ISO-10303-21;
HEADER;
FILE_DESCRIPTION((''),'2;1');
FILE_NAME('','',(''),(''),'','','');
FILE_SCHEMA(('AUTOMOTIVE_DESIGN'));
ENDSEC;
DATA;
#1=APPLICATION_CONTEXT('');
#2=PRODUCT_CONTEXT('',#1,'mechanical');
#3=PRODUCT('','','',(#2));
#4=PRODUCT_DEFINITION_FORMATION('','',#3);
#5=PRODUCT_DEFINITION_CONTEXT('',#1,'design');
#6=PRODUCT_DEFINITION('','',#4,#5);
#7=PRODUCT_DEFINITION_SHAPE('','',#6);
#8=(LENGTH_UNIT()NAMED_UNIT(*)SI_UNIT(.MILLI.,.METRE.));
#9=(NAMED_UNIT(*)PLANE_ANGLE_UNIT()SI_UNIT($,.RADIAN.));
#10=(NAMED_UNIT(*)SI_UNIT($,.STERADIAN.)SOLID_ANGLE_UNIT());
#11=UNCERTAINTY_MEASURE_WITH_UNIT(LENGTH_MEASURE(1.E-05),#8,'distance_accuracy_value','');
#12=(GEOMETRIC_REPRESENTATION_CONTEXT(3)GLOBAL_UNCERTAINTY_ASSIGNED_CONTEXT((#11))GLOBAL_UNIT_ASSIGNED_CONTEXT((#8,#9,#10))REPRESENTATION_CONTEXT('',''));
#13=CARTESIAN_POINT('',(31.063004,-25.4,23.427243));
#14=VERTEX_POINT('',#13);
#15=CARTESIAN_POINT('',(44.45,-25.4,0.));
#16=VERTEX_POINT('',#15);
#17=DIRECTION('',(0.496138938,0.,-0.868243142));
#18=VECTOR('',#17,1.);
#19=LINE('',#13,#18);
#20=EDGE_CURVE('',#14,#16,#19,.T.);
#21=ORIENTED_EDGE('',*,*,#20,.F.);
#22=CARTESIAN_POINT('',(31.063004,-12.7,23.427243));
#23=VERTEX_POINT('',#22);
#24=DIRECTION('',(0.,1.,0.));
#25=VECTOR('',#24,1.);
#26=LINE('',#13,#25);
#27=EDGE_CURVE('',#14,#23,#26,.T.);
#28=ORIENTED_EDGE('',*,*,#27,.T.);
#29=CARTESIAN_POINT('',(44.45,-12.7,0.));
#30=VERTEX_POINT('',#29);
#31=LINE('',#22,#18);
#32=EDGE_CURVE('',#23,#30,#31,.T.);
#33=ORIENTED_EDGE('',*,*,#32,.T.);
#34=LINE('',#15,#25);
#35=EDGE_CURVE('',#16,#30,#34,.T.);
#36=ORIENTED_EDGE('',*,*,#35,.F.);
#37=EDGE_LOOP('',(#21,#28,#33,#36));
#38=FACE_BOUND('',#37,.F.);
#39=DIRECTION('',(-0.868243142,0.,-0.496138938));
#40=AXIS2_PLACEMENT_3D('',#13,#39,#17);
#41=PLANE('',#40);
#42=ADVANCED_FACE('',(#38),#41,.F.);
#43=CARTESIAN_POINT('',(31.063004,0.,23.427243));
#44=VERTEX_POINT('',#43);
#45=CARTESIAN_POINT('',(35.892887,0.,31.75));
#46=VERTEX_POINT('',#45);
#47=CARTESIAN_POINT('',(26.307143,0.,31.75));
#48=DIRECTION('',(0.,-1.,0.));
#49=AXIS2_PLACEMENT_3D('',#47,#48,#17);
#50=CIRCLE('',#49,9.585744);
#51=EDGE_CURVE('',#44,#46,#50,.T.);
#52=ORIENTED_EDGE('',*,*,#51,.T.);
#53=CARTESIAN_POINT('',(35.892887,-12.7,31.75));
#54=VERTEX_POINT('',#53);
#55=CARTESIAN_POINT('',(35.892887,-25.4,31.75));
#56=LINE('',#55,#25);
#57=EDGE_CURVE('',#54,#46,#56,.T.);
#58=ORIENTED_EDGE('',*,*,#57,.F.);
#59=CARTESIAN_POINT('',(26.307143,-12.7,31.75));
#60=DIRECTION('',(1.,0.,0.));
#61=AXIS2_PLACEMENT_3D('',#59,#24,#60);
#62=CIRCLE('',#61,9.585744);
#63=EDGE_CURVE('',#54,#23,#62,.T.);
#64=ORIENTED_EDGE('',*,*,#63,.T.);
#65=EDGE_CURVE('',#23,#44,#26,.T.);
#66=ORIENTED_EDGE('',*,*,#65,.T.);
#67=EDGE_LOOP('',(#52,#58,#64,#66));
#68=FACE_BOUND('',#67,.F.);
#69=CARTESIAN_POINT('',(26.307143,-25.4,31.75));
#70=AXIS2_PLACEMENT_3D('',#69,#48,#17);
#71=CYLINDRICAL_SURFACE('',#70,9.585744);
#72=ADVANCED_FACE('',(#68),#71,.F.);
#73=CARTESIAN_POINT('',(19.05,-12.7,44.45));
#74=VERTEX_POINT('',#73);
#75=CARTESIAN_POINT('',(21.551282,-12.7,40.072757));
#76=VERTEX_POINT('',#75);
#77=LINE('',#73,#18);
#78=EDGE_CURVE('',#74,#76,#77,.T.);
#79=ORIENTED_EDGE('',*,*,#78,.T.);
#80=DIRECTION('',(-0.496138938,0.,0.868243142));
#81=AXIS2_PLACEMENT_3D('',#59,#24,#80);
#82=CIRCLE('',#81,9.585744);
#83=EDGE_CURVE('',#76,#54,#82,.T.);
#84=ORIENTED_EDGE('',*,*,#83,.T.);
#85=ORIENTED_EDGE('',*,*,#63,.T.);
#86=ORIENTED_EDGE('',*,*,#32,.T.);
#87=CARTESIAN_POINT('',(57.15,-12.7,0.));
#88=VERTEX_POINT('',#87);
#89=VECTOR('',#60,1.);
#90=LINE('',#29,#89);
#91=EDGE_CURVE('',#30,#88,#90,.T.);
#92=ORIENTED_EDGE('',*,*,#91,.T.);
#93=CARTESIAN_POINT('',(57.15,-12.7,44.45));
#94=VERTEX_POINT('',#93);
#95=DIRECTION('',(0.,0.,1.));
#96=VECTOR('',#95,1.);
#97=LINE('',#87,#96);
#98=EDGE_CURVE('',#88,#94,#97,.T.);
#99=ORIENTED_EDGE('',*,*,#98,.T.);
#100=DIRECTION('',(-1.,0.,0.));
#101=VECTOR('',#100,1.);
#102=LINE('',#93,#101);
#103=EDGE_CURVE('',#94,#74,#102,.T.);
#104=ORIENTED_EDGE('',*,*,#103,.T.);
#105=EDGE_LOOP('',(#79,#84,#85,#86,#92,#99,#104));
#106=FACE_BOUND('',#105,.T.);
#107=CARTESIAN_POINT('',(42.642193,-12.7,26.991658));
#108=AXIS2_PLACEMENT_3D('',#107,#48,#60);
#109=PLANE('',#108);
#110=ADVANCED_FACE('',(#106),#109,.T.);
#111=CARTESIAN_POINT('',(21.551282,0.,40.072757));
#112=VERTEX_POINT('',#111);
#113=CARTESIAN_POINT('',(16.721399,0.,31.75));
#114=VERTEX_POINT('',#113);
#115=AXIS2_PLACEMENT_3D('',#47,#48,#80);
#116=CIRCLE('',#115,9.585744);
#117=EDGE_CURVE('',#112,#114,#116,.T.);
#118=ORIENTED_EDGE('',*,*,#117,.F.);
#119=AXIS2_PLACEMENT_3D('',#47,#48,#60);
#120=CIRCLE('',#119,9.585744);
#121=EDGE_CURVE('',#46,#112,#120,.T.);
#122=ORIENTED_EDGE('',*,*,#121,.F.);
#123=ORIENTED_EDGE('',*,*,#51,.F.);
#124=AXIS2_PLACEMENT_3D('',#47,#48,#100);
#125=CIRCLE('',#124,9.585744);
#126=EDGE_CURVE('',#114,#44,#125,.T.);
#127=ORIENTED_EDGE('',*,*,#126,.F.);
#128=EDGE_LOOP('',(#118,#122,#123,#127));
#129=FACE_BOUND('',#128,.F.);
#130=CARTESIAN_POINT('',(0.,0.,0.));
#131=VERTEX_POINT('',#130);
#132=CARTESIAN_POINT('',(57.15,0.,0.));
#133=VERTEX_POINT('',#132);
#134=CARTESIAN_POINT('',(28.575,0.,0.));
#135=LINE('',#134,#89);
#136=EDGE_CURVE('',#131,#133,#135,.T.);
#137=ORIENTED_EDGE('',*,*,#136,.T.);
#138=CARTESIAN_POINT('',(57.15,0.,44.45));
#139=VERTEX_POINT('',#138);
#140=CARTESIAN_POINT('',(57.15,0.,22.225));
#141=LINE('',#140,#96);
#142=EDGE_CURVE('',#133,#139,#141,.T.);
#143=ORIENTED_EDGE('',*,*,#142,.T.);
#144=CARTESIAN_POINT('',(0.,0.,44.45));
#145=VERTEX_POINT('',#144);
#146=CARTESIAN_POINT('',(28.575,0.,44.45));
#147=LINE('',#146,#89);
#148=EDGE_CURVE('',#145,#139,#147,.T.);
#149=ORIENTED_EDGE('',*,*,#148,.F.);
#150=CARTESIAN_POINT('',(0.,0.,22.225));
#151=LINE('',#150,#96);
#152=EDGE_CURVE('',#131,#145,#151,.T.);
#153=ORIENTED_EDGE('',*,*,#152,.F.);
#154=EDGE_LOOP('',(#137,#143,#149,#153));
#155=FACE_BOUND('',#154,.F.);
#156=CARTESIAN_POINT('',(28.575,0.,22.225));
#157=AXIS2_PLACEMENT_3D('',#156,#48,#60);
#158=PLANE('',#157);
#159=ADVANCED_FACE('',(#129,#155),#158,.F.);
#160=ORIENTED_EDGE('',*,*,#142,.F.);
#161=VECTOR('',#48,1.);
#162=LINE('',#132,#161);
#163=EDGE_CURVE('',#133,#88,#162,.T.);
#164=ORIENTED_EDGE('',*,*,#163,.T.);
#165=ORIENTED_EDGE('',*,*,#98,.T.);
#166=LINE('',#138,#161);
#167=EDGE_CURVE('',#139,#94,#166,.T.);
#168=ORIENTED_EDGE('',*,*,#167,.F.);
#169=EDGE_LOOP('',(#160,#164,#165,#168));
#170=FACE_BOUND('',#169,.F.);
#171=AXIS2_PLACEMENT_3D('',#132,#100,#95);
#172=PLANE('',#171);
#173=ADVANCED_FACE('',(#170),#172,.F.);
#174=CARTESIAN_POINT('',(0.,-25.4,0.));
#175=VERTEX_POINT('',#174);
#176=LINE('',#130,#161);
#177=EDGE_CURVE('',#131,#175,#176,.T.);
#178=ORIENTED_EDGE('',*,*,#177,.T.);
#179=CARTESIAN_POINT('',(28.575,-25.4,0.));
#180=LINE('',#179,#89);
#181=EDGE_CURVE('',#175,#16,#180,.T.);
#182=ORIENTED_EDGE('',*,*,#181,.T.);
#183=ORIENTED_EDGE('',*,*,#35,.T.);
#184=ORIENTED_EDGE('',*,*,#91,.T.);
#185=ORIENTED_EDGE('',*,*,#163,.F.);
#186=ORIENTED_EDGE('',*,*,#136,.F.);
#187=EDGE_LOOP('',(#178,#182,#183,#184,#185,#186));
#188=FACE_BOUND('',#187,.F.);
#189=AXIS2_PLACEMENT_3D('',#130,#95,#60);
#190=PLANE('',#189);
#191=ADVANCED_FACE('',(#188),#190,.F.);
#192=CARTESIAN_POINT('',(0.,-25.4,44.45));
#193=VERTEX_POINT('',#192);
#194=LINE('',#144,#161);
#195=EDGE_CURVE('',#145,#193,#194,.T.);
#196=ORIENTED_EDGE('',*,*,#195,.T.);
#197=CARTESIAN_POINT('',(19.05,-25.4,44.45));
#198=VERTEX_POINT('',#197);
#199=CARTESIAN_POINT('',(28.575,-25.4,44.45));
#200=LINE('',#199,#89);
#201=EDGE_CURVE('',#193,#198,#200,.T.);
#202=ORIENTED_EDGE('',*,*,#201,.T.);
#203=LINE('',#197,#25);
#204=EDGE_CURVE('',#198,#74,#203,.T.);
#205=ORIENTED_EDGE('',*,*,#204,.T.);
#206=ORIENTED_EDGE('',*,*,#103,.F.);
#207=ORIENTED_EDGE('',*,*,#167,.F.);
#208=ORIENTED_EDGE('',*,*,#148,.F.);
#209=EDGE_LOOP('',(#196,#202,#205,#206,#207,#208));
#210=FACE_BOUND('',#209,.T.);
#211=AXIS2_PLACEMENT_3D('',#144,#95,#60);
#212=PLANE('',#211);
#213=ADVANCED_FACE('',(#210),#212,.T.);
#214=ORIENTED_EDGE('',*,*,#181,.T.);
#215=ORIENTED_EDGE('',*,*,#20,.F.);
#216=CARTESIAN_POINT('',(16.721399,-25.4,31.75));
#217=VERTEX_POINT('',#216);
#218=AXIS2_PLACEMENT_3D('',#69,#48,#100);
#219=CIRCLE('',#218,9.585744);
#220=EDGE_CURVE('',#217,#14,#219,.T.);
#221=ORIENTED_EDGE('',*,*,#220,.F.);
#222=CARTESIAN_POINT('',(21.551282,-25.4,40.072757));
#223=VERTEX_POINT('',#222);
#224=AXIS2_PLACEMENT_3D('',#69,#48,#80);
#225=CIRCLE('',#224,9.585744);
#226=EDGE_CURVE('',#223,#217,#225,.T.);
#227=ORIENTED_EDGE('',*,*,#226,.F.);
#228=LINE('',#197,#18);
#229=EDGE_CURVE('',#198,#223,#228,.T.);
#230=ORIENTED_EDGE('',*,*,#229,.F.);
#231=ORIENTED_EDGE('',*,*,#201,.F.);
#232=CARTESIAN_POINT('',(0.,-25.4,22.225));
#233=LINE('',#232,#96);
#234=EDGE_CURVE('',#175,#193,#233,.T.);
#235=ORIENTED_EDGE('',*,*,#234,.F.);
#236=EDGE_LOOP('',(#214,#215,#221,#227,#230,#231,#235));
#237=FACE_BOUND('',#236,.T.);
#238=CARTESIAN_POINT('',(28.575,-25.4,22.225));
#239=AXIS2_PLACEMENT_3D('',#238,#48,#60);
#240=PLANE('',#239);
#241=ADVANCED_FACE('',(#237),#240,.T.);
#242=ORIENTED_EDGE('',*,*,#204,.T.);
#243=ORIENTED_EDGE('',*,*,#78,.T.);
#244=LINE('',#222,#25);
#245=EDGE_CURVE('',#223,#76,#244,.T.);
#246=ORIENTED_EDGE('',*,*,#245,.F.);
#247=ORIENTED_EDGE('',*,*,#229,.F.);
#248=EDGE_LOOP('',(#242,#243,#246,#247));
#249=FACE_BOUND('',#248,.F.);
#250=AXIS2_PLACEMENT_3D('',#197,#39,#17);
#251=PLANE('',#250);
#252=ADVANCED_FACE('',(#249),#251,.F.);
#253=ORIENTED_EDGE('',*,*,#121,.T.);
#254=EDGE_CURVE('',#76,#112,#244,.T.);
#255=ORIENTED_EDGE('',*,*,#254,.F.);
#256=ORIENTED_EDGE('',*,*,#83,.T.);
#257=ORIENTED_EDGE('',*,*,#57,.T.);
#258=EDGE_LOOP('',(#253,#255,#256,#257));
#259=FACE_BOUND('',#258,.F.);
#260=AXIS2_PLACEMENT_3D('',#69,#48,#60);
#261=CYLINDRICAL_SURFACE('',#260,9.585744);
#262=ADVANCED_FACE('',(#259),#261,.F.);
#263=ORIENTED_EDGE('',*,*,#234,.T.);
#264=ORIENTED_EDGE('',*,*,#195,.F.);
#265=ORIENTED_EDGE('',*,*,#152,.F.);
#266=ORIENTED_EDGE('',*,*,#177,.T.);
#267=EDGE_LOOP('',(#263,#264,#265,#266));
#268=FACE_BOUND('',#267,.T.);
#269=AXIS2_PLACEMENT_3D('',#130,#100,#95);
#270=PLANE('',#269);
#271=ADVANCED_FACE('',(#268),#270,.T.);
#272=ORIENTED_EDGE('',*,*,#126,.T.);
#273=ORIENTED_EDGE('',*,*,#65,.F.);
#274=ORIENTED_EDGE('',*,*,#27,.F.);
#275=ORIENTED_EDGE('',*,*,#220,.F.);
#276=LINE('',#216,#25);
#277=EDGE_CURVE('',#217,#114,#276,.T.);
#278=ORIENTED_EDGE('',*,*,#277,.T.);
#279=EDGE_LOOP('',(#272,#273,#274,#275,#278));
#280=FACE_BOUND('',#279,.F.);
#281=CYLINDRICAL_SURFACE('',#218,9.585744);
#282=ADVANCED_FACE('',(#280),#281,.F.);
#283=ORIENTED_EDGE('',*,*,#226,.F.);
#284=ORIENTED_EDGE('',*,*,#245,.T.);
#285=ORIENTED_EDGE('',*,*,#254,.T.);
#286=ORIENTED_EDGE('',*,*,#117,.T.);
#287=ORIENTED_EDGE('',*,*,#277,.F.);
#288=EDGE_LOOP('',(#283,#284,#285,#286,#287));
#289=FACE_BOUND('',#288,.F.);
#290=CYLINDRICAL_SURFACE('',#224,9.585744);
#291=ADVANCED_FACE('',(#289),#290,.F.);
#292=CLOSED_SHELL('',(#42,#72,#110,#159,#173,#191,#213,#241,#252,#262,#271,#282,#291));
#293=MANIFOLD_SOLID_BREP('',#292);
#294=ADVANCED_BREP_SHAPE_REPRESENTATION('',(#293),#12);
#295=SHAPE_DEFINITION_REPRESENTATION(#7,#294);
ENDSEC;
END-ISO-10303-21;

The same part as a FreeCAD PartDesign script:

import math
import FreeCAD as App
import Part
import Sketcher

V = App.Vector
Q = App.Units.Quantity

doc = App.newDocument("Part")
body = doc.addObject("PartDesign::Body", "Body")

# Sketch on XZ plane
sketch1 = doc.addObject("Sketcher::SketchObject", "Sketch")
body.addObject(sketch1)
sketch1.AttachmentSupport = (doc.XZ_Plane, [""])
sketch1.MapMode = "FlatFace"
sketch1.addGeometry(Part.LineSegment(V(0, 44.45, 0), V(0, 0, 0)), False)
sketch1.addGeometry(Part.LineSegment(V(0, 0, 0), V(57.15, 0, 0)), False)
sketch1.addGeometry(Part.LineSegment(V(57.15, 0, 0), V(57.15, 44.45, 0)), False)
sketch1.addGeometry(Part.LineSegment(V(57.15, 44.45, 0), V(0, 44.45, 0)), False)
sketch1.addConstraint(Sketcher.Constraint("Coincident", 0, 2, 1, 1))
sketch1.addConstraint(Sketcher.Constraint("Coincident", 1, 2, 2, 1))
sketch1.addConstraint(Sketcher.Constraint("Coincident", 2, 2, 3, 1))
sketch1.addConstraint(Sketcher.Constraint("Coincident", 3, 2, 0, 1))
sketch1.addConstraint(Sketcher.Constraint("Vertical", 0))
sketch1.addConstraint(Sketcher.Constraint("Horizontal", 1))
sketch1.addConstraint(Sketcher.Constraint("Vertical", 2))
sketch1.addConstraint(Sketcher.Constraint("Horizontal", 3))
sketch1.addConstraint(Sketcher.Constraint("Coincident", 0, 2, -1, 1))
sketch1.addConstraint(Sketcher.Constraint("DistanceX", 1, 1, 1, 2, Q("2.25 in")))
sketch1.addConstraint(Sketcher.Constraint("DistanceY", 0, 2, 0, 1, Q("1.75 in")))
pad1 = doc.addObject("PartDesign::Pad", "Pad")
body.addObject(pad1)
pad1.Profile = sketch1
pad1.Length = Q("1 in")

# Sketch on XZ plane
sketch2 = doc.addObject("Sketcher::SketchObject", "Sketch001")
body.addObject(sketch2)
sketch2.AttachmentSupport = (doc.XZ_Plane, [""])
sketch2.MapMode = "FlatFace"
sketch2.AttachmentOffset = App.Placement(V(0, 0, 1 * 25.4), App.Rotation())
sketch2.addGeometry(Part.ArcOfCircle(Part.Circle(V(26.307143, 31.75, 0), V(0, 0, 1), 9.585744), math.radians(0), math.radians(119.744881)), False)
sketch2.addGeometry(Part.ArcOfCircle(Part.Circle(V(26.307143, 31.75, 0), V(0, 0, 1), 9.585744), math.radians(119.744881), math.radians(180)), False)
sketch2.addGeometry(Part.ArcOfCircle(Part.Circle(V(26.307143, 31.75, 0), V(0, 0, 1), 9.585744), math.radians(180), math.radians(299.744881)), False)
sketch2.addGeometry(Part.ArcOfCircle(Part.Circle(V(26.307143, 31.75, 0), V(0, 0, 1), 9.585744), math.radians(-60.255119), math.radians(0)), False)
sketch2.addConstraint(Sketcher.Constraint("Tangent", 0, 2, 1, 1))
sketch2.addConstraint(Sketcher.Constraint("Tangent", 1, 2, 2, 1))
sketch2.addConstraint(Sketcher.Constraint("Tangent", 2, 2, 3, 1))
sketch2.addConstraint(Sketcher.Constraint("Tangent", 3, 2, 0, 1))
sketch2.addConstraint(Sketcher.Constraint("Equal", 0, 1))
sketch2.addConstraint(Sketcher.Constraint("Horizontal", 3, 3, 1, 2))
sketch2.addConstraint(Sketcher.Constraint("Horizontal", 1, 2, 3, 2))
sketch2.addConstraint(Sketcher.Constraint("DistanceY", -1, 1, 0, 3, Q("1.25 in")))
sketch2.addConstraint(Sketcher.Constraint("Radius", 0, 9.585744))
sketch2.addConstraint(Sketcher.Constraint("DistanceX", -1, 1, 1, 2, 16.721399))
sketch2.addConstraint(Sketcher.Constraint("DistanceX", -1, 1, 0, 2, 21.551282))
sketch2.addConstraint(Sketcher.Constraint("DistanceX", 0, 3, 2, 2, 4.755861))
pocket1 = doc.addObject("PartDesign::Pocket", "Pocket")
body.addObject(pocket1)
pocket1.Profile = sketch2
pocket1.Type = "ThroughAll"

# Sketch on XZ plane
sketch3 = doc.addObject("Sketcher::SketchObject", "Sketch002")
body.addObject(sketch3)
sketch3.AttachmentSupport = (doc.XZ_Plane, [""])
sketch3.MapMode = "FlatFace"
sketch3.AttachmentOffset = App.Placement(V(0, 0, 1 * 25.4), App.Rotation())
sketch3.addGeometry(Part.LineSegment(V(57.15, 44.45, 0), V(19.05, 44.45, 0)), False)
sketch3.addGeometry(Part.LineSegment(V(19.05, 44.45, 0), V(21.551282, 40.072757, 0)), False)
sketch3.addGeometry(Part.ArcOfCircle(Part.Circle(V(26.307143, 31.75, 0), V(0, 0, 1), 9.585744), math.radians(0), math.radians(119.744881)), False)
sketch3.addGeometry(Part.ArcOfCircle(Part.Circle(V(26.307143, 31.75, 0), V(0, 0, 1), 9.585744), math.radians(-60.255119), math.radians(0)), False)
sketch3.addGeometry(Part.LineSegment(V(31.063004, 23.427243, 0), V(44.45, 0, 0)), False)
sketch3.addGeometry(Part.LineSegment(V(44.45, 0, 0), V(57.15, 0, 0)), False)
sketch3.addGeometry(Part.LineSegment(V(57.15, 0, 0), V(57.15, 44.45, 0)), False)
sketch3.addConstraint(Sketcher.Constraint("Coincident", 0, 2, 1, 1))
sketch3.addConstraint(Sketcher.Constraint("Coincident", 1, 2, 2, 2))
sketch3.addConstraint(Sketcher.Constraint("Tangent", 2, 1, 3, 2))
sketch3.addConstraint(Sketcher.Constraint("Coincident", 3, 1, 4, 1))
sketch3.addConstraint(Sketcher.Constraint("Coincident", 4, 2, 5, 1))
sketch3.addConstraint(Sketcher.Constraint("Coincident", 5, 2, 6, 1))
sketch3.addConstraint(Sketcher.Constraint("Coincident", 6, 2, 0, 1))
sketch3.addConstraint(Sketcher.Constraint("Horizontal", 0))
sketch3.addConstraint(Sketcher.Constraint("Horizontal", 5))
sketch3.addConstraint(Sketcher.Constraint("Vertical", 6))
sketch3.addConstraint(Sketcher.Constraint("Equal", 2, 3))
sketch3.addConstraint(Sketcher.Constraint("PointOnObject", 4, 2, -1))
sketch3.addConstraint(Sketcher.Constraint("Parallel", 1, 4))
sketch3.addConstraint(Sketcher.Constraint("Horizontal", 3, 3, 2, 1))
sketch3.addConstraint(Sketcher.Constraint("DistanceX", 0, 2, 0, 1, Q("1.5 in")))
sketch3.addConstraint(Sketcher.Constraint("DistanceX", 5, 1, 5, 2, Q("0.5 in")))
sketch3.addConstraint(Sketcher.Constraint("DistanceY", 6, 1, 6, 2, Q("1.75 in")))
sketch3.addConstraint(Sketcher.Constraint("DistanceY", 2, 3, 0, 2, Q("0.5 in")))
sketch3.addConstraint(Sketcher.Constraint("DistanceX", -1, 1, 0, 2, Q("0.75 in")))
sketch3.addConstraint(Sketcher.Constraint("Radius", 2, 9.585744))
sketch3.addConstraint(Sketcher.Constraint("DistanceX", -1, 1, 1, 2, 21.551282))
sketch3.addConstraint(Sketcher.Constraint("DistanceX", 1, 2, 2, 3, 4.755861))
pocket2 = doc.addObject("PartDesign::Pocket", "Pocket001")
body.addObject(pocket2)
pocket2.Profile = sketch3
pocket2.Length = Q("0.5 in")

doc.recompute()
